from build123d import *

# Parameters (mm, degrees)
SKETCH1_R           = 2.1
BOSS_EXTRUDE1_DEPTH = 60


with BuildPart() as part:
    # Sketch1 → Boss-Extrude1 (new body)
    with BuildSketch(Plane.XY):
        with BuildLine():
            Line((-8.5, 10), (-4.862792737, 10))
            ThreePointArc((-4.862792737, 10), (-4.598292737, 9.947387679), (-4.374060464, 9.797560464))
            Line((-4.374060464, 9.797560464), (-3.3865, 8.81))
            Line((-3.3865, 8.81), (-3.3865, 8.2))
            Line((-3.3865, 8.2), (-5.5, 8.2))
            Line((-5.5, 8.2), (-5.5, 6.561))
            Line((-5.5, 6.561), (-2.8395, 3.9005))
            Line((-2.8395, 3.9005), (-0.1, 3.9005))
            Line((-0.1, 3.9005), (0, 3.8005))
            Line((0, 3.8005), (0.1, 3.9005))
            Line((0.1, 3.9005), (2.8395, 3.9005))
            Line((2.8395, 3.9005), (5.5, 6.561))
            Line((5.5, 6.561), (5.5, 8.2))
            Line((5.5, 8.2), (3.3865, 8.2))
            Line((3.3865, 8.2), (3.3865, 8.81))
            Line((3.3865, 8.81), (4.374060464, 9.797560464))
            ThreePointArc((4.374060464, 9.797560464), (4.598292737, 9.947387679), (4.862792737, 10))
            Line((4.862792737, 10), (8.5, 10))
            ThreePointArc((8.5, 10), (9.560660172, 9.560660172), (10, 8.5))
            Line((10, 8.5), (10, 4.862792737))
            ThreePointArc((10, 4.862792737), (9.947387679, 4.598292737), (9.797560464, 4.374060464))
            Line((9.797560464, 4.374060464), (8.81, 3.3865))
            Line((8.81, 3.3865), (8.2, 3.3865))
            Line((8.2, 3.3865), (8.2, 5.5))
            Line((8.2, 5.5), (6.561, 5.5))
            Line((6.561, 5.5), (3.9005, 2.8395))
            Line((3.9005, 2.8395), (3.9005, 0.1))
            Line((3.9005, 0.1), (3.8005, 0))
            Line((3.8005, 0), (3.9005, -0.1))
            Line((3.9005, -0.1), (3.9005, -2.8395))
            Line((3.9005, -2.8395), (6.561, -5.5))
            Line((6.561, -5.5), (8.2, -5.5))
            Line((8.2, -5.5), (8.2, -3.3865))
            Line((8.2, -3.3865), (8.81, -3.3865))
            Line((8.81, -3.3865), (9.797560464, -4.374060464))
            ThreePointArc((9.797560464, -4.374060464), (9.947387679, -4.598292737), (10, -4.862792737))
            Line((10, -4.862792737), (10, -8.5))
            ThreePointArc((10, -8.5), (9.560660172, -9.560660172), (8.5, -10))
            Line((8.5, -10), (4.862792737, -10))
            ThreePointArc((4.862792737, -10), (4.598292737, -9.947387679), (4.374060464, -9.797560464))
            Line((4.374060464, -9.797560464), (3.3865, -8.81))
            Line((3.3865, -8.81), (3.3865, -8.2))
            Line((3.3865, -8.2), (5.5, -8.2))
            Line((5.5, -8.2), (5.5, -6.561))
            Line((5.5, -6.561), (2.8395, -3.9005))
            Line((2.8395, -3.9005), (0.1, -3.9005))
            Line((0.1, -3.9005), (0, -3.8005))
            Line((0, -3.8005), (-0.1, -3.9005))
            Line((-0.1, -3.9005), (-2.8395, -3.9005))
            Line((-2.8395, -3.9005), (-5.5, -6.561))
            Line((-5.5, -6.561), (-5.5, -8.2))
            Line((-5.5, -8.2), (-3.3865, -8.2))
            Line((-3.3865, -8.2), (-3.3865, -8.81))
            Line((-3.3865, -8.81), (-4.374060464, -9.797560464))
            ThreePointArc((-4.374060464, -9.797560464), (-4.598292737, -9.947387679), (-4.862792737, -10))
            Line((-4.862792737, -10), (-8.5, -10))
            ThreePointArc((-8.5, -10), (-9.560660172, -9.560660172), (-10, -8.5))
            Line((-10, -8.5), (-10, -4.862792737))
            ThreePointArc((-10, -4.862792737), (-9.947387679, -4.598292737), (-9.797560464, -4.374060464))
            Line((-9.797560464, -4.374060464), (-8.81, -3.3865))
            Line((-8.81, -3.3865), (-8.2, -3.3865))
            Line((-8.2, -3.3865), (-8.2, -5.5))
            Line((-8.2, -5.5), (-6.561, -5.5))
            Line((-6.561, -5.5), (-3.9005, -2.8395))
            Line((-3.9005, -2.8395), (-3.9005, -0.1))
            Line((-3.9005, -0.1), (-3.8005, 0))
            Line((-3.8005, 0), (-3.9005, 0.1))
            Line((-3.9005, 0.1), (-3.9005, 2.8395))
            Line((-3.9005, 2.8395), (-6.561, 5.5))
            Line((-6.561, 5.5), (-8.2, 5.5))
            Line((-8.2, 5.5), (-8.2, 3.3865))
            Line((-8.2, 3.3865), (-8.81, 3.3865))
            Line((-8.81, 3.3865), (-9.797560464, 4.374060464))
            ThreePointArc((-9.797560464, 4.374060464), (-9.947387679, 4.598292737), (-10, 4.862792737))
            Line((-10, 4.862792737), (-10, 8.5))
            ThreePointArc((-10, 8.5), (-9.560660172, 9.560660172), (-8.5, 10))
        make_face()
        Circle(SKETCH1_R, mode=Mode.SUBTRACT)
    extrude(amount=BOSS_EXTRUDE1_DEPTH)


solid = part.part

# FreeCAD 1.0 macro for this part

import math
import FreeCAD as App
import Part
import Sketcher
Q = App.Units.Quantity

doc = App.newDocument("Part")
body = doc.addObject("PartDesign::Body", "Body")

# Sketch on XY plane
sketch1 = body.newObject("Sketcher::SketchObject", "Sketch")
sketch1.AttachmentSupport = (doc.getObject("XY_Plane"), [""])
sketch1.MapMode = "FlatFace"
sketch1.addGeometry(Part.LineSegment(App.Vector(-4.86, 10, 0), App.Vector(-8.5, 10, 0)), False)
sketch1.addGeometry(Part.ArcOfCircle(Part.Circle(App.Vector(-8.5, 8.5, 0), App.Vector(0, 0, 1), 1.5), math.radians(90), math.radians(180)), False)
sketch1.addGeometry(Part.LineSegment(App.Vector(-10, 8.5, 0), App.Vector(-10, 4.86, 0)), False)
sketch1.addGeometry(Part.ArcOfCircle(Part.Circle(App.Vector(-9.31, 4.86, 0), App.Vector(0, 0, 1), 0.69), math.radians(180), math.radians(225)), False)
sketch1.addGeometry(Part.LineSegment(App.Vector(-9.8, 4.37, 0), App.Vector(-8.81, 3.39, 0)), False)
sketch1.addGeometry(Part.LineSegment(App.Vector(-8.81, 3.39, 0), App.Vector(-8.2, 3.39, 0)), False)
sketch1.addGeometry(Part.LineSegment(App.Vector(-8.2, 3.39, 0), App.Vector(-8.2, 5.5, 0)), False)
sketch1.addGeometry(Part.LineSegment(App.Vector(-8.2, 5.5, 0), App.Vector(-6.56, 5.5, 0)), False)
sketch1.addGeometry(Part.LineSegment(App.Vector(-6.56, 5.5, 0), App.Vector(-3.9, 2.84, 0)), False)
sketch1.addGeometry(Part.LineSegment(App.Vector(-3.9, 2.84, 0), App.Vector(-3.9, 0.1, 0)), False)
sketch1.addGeometry(Part.LineSegment(App.Vector(-3.9, 0.1, 0), App.Vector(-3.8, 0, 0)), False)
sketch1.addGeometry(Part.LineSegment(App.Vector(-3.8, 0, 0), App.Vector(-3.9, -0.1, 0)), False)
sketch1.addGeometry(Part.LineSegment(App.Vector(-3.9, -0.1, 0), App.Vector(-3.9, -2.84, 0)), False)
sketch1.addGeometry(Part.LineSegment(App.Vector(-3.9, -2.84, 0), App.Vector(-6.56, -5.5, 0)), False)
sketch1.addGeometry(Part.LineSegment(App.Vector(-6.56, -5.5, 0), App.Vector(-8.2, -5.5, 0)), False)
sketch1.addGeometry(Part.LineSegment(App.Vector(-8.2, -5.5, 0), App.Vector(-8.2, -3.39, 0)), False)
sketch1.addGeometry(Part.LineSegment(App.Vector(-8.2, -3.39, 0), App.Vector(-8.81, -3.39, 0)), False)
sketch1.addGeometry(Part.LineSegment(App.Vector(-8.81, -3.39, 0), App.Vector(-9.8, -4.37, 0)), False)
sketch1.addGeometry(Part.ArcOfCircle(Part.Circle(App.Vector(-9.31, -4.86, 0), App.Vector(0, 0, 1), 0.69), math.radians(135), math.radians(180)), False)
sketch1.addGeometry(Part.LineSegment(App.Vector(-10, -4.86, 0), App.Vector(-10, -8.5, 0)), False)
sketch1.addGeometry(Part.ArcOfCircle(Part.Circle(App.Vector(-8.5, -8.5, 0), App.Vector(0, 0, 1), 1.5), math.radians(180), math.radians(270)), False)
sketch1.addGeometry(Part.LineSegment(App.Vector(-8.5, -10, 0), App.Vector(-4.86, -10, 0)), False)
sketch1.addGeometry(Part.ArcOfCircle(Part.Circle(App.Vector(-4.86, -9.31, 0), App.Vector(0, 0, 1), 0.69), math.radians(-90), math.radians(-45)), False)
sketch1.addGeometry(Part.LineSegment(App.Vector(-4.37, -9.8, 0), App.Vector(-3.39, -8.81, 0)), False)
sketch1.addGeometry(Part.LineSegment(App.Vector(-3.39, -8.81, 0), App.Vector(-3.39, -8.2, 0)), False)
sketch1.addGeometry(Part.LineSegment(App.Vector(-3.39, -8.2, 0), App.Vector(-5.5, -8.2, 0)), False)
sketch1.addGeometry(Part.LineSegment(App.Vector(-5.5, -8.2, 0), App.Vector(-5.5, -6.56, 0)), False)
sketch1.addGeometry(Part.LineSegment(App.Vector(-5.5, -6.56, 0), App.Vector(-2.84, -3.9, 0)), False)
sketch1.addGeometry(Part.LineSegment(App.Vector(-2.84, -3.9, 0), App.Vector(-0.1, -3.9, 0)), False)
sketch1.addGeometry(Part.LineSegment(App.Vector(-0.1, -3.9, 0), App.Vector(0, -3.8, 0)), False)
sketch1.addGeometry(Part.LineSegment(App.Vector(0, -3.8, 0), App.Vector(0.1, -3.9, 0)), False)
sketch1.addGeometry(Part.LineSegment(App.Vector(0.1, -3.9, 0), App.Vector(2.84, -3.9, 0)), False)
sketch1.addGeometry(Part.LineSegment(App.Vector(2.84, -3.9, 0), App.Vector(5.5, -6.56, 0)), False)
sketch1.addGeometry(Part.LineSegment(App.Vector(5.5, -6.56, 0), App.Vector(5.5, -8.2, 0)), False)
sketch1.addGeometry(Part.LineSegment(App.Vector(5.5, -8.2, 0), App.Vector(3.39, -8.2, 0)), False)
sketch1.addGeometry(Part.LineSegment(App.Vector(3.39, -8.2, 0), App.Vector(3.39, -8.81, 0)), False)
sketch1.addGeometry(Part.LineSegment(App.Vector(3.39, -8.81, 0), App.Vector(4.37, -9.8, 0)), False)
sketch1.addGeometry(Part.ArcOfCircle(Part.Circle(App.Vector(4.86, -9.31, 0), App.Vector(0, 0, 1), 0.69), math.radians(-135), math.radians(-90)), False)
sketch1.addGeometry(Part.LineSegment(App.Vector(4.86, -10, 0), App.Vector(8.5, -10, 0)), False)
sketch1.addGeometry(Part.ArcOfCircle(Part.Circle(App.Vector(8.5, -8.5, 0), App.Vector(0, 0, 1), 1.5), math.radians(-90), math.radians(0)), False)
sketch1.addGeometry(Part.LineSegment(App.Vector(10, -8.5, 0), App.Vector(10, -4.86, 0)), False)
sketch1.addGeometry(Part.ArcOfCircle(Part.Circle(App.Vector(9.31, -4.86, 0), App.Vector(0, 0, 1), 0.69), math.radians(0), math.radians(45)), False)
sketch1.addGeometry(Part.LineSegment(App.Vector(9.8, -4.37, 0), App.Vector(8.81, -3.39, 0)), False)
sketch1.addGeometry(Part.LineSegment(App.Vector(8.81, -3.39, 0), App.Vector(8.2, -3.39, 0)), False)
sketch1.addGeometry(Part.LineSegment(App.Vector(8.2, -3.39, 0), App.Vector(8.2, -5.5, 0)), False)
sketch1.addGeometry(Part.LineSegment(App.Vector(8.2, -5.5, 0), App.Vector(6.56, -5.5, 0)), False)
sketch1.addGeometry(Part.LineSegment(App.Vector(6.56, -5.5, 0), App.Vector(3.9, -2.84, 0)), False)
sketch1.addGeometry(Part.LineSegment(App.Vector(3.9, -2.84, 0), App.Vector(3.9, -0.1, 0)), False)
sketch1.addGeometry(Part.LineSegment(App.Vector(3.9, -0.1, 0), App.Vector(3.8, 0, 0)), False)
sketch1.addGeometry(Part.LineSegment(App.Vector(3.8, 0, 0), App.Vector(3.9, 0.1, 0)), False)
sketch1.addGeometry(Part.LineSegment(App.Vector(3.9, 0.1, 0), App.Vector(3.9, 2.84, 0)), False)
sketch1.addGeometry(Part.LineSegment(App.Vector(3.9, 2.84, 0), App.Vector(6.56, 5.5, 0)), False)
sketch1.addGeometry(Part.LineSegment(App.Vector(6.56, 5.5, 0), App.Vector(8.2, 5.5, 0)), False)
sketch1.addGeometry(Part.LineSegment(App.Vector(8.2, 5.5, 0), App.Vector(8.2, 3.39, 0)), False)
sketch1.addGeometry(Part.LineSegment(App.Vector(8.2, 3.39, 0), App.Vector(8.81, 3.39, 0)), False)
sketch1.addGeometry(Part.LineSegment(App.Vector(8.81, 3.39, 0), App.Vector(9.8, 4.37, 0)), False)
sketch1.addGeometry(Part.ArcOfCircle(Part.Circle(App.Vector(9.31, 4.86, 0), App.Vector(0, 0, 1), 0.69), math.radians(-45), math.radians(0)), False)
sketch1.addGeometry(Part.LineSegment(App.Vector(10, 4.86, 0), App.Vector(10, 8.5, 0)), False)
sketch1.addGeometry(Part.ArcOfCircle(Part.Circle(App.Vector(8.5, 8.5, 0), App.Vector(0, 0, 1), 1.5), math.radians(0), math.radians(90)), False)
sketch1.addGeometry(Part.LineSegment(App.Vector(8.5, 10, 0), App.Vector(4.86, 10, 0)), False)
sketch1.addGeometry(Part.ArcOfCircle(Part.Circle(App.Vector(4.86, 9.31, 0), App.Vector(0, 0, 1), 0.69), math.radians(90), math.radians(135)), False)
sketch1.addGeometry(Part.LineSegment(App.Vector(4.37, 9.8, 0), App.Vector(3.39, 8.81, 0)), False)
sketch1.addGeometry(Part.LineSegment(App.Vector(3.39, 8.81, 0), App.Vector(3.39, 8.2, 0)), False)
sketch1.addGeometry(Part.LineSegment(App.Vector(3.39, 8.2, 0), App.Vector(5.5, 8.2, 0)), False)
sketch1.addGeometry(Part.LineSegment(App.Vector(5.5, 8.2, 0), App.Vector(5.5, 6.56, 0)), False)
sketch1.addGeometry(Part.LineSegment(App.Vector(5.5, 6.56, 0), App.Vector(2.84, 3.9, 0)), False)
sketch1.addGeometry(Part.LineSegment(App.Vector(2.84, 3.9, 0), App.Vector(0.1, 3.9, 0)), False)
sketch1.addGeometry(Part.LineSegment(App.Vector(0.1, 3.9, 0), App.Vector(0, 3.8, 0)), False)
sketch1.addGeometry(Part.LineSegment(App.Vector(0, 3.8, 0), App.Vector(-0.1, 3.9, 0)), False)
sketch1.addGeometry(Part.LineSegment(App.Vector(-0.1, 3.9, 0), App.Vector(-2.84, 3.9, 0)), False)
sketch1.addGeometry(Part.LineSegment(App.Vector(-2.84, 3.9, 0), App.Vector(-5.5, 6.56, 0)), False)
sketch1.addGeometry(Part.LineSegment(App.Vector(-5.5, 6.56, 0), App.Vector(-5.5, 8.2, 0)), False)
sketch1.addGeometry(Part.LineSegment(App.Vector(-5.5, 8.2, 0), App.Vector(-3.39, 8.2, 0)), False)
sketch1.addGeometry(Part.LineSegment(App.Vector(-3.39, 8.2, 0), App.Vector(-3.39, 8.81, 0)), False)
sketch1.addGeometry(Part.LineSegment(App.Vector(-3.39, 8.81, 0), App.Vector(-4.37, 9.8, 0)), False)
sketch1.addGeometry(Part.ArcOfCircle(Part.Circle(App.Vector(-4.86, 9.31, 0), App.Vector(0, 0, 1), 0.69), math.radians(45), math.radians(90)), False)
sketch1.addGeometry(Part.Circle(App.Vector(0, 0, 0), App.Vector(0, 0, 1), 2.1), False)
sketch1.addConstraint(Sketcher.Constraint("Tangent", 0, 2, 1, 1))
sketch1.addConstraint(Sketcher.Constraint("Tangent", 1, 2, 2, 1))
sketch1.addConstraint(Sketcher.Constraint("Tangent", 2, 2, 3, 1))
sketch1.addConstraint(Sketcher.Constraint("Tangent", 3, 2, 4, 1))
sketch1.addConstraint(Sketcher.Constraint("Coincident", 4, 2, 5, 1))
sketch1.addConstraint(Sketcher.Constraint("Coincident", 5, 2, 6, 1))
sketch1.addConstraint(Sketcher.Constraint("Coincident", 6, 2, 7, 1))
sketch1.addConstraint(Sketcher.Constraint("Coincident", 7, 2, 8, 1))
sketch1.addConstraint(Sketcher.Constraint("Coincident", 8, 2, 9, 1))
sketch1.addConstraint(Sketcher.Constraint("Coincident", 9, 2, 10, 1))
sketch1.addConstraint(Sketcher.Constraint("Coincident", 10, 2, 11, 1))
sketch1.addConstraint(Sketcher.Constraint("Coincident", 11, 2, 12, 1))
sketch1.addConstraint(Sketcher.Constraint("Coincident", 12, 2, 13, 1))
sketch1.addConstraint(Sketcher.Constraint("Coincident", 13, 2, 14, 1))
sketch1.addConstraint(Sketcher.Constraint("Coincident", 14, 2, 15, 1))
sketch1.addConstraint(Sketcher.Constraint("Coincident", 15, 2, 16, 1))
sketch1.addConstraint(Sketcher.Constraint("Coincident", 16, 2, 17, 1))
sketch1.addConstraint(Sketcher.Constraint("Tangent", 17, 2, 18, 1))
sketch1.addConstraint(Sketcher.Constraint("Tangent", 18, 2, 19, 1))
sketch1.addConstraint(Sketcher.Constraint("Tangent", 19, 2, 20, 1))
sketch1.addConstraint(Sketcher.Constraint("Tangent", 20, 2, 21, 1))
sketch1.addConstraint(Sketcher.Constraint("Tangent", 21, 2, 22, 1))
sketch1.addConstraint(Sketcher.Constraint("Tangent", 22, 2, 23, 1))
sketch1.addConstraint(Sketcher.Constraint("Coincident", 23, 2, 24, 1))
sketch1.addConstraint(Sketcher.Constraint("Coincident", 24, 2, 25, 1))
sketch1.addConstraint(Sketcher.Constraint("Coincident", 25, 2, 26, 1))
sketch1.addConstraint(Sketcher.Constraint("Coincident", 26, 2, 27, 1))
sketch1.addConstraint(Sketcher.Constraint("Coincident", 27, 2, 28, 1))
sketch1.addConstraint(Sketcher.Constraint("Coincident", 28, 2, 29, 1))
sketch1.addConstraint(Sketcher.Constraint("Coincident", 29, 2, 30, 1))
sketch1.addConstraint(Sketcher.Constraint("Coincident", 30, 2, 31, 1))
sketch1.addConstraint(Sketcher.Constraint("Coincident", 31, 2, 32, 1))
sketch1.addConstraint(Sketcher.Constraint("Coincident", 32, 2, 33, 1))
sketch1.addConstraint(Sketcher.Constraint("Coincident", 33, 2, 34, 1))
sketch1.addConstraint(Sketcher.Constraint("Coincident", 34, 2, 35, 1))
sketch1.addConstraint(Sketcher.Constraint("Coincident", 35, 2, 36, 1))
sketch1.addConstraint(Sketcher.Constraint("Tangent", 36, 2, 37, 1))
sketch1.addConstraint(Sketcher.Constraint("Tangent", 37, 2, 38, 1))
sketch1.addConstraint(Sketcher.Constraint("Tangent", 38, 2, 39, 1))
sketch1.addConstraint(Sketcher.Constraint("Tangent", 39, 2, 40, 1))
sketch1.addConstraint(Sketcher.Constraint("Tangent", 40, 2, 41, 1))
sketch1.addConstraint(Sketcher.Constraint("Tangent", 41, 2, 42, 1))
sketch1.addConstraint(Sketcher.Constraint("Coincident", 42, 2, 43, 1))
sketch1.addConstraint(Sketcher.Constraint("Coincident", 43, 2, 44, 1))
sketch1.addConstraint(Sketcher.Constraint("Coincident", 44, 2, 45, 1))
sketch1.addConstraint(Sketcher.Constraint("Coincident", 45, 2, 46, 1))
sketch1.addConstraint(Sketcher.Constraint("Coincident", 46, 2, 47, 1))
sketch1.addConstraint(Sketcher.Constraint("Coincident", 47, 2, 48, 1))
sketch1.addConstraint(Sketcher.Constraint("Coincident", 48, 2, 49, 1))
sketch1.addConstraint(Sketcher.Constraint("Coincident", 49, 2, 50, 1))
sketch1.addConstraint(Sketcher.Constraint("Coincident", 50, 2, 51, 1))
sketch1.addConstraint(Sketcher.Constraint("Coincident", 51, 2, 52, 1))
sketch1.addConstraint(Sketcher.Constraint("Coincident", 52, 2, 53, 1))
sketch1.addConstraint(Sketcher.Constraint("Coincident", 53, 2, 54, 1))
sketch1.addConstraint(Sketcher.Constraint("Coincident", 54, 2, 55, 1))
sketch1.addConstraint(Sketcher.Constraint("Tangent", 55, 2, 56, 1))
sketch1.addConstraint(Sketcher.Constraint("Tangent", 56, 2, 57, 1))
sketch1.addConstraint(Sketcher.Constraint("Tangent", 57, 2, 58, 1))
sketch1.addConstraint(Sketcher.Constraint("Tangent", 58, 2, 59, 1))
sketch1.addConstraint(Sketcher.Constraint("Tangent", 59, 2, 60, 1))
sketch1.addConstraint(Sketcher.Constraint("Tangent", 60, 2, 61, 1))
sketch1.addConstraint(Sketcher.Constraint("Coincident", 61, 2, 62, 1))
sketch1.addConstraint(Sketcher.Constraint("Coincident", 62, 2, 63, 1))
sketch1.addConstraint(Sketcher.Constraint("Coincident", 63, 2, 64, 1))
sketch1.addConstraint(Sketcher.Constraint("Coincident", 64, 2, 65, 1))
sketch1.addConstraint(Sketcher.Constraint("Coincident", 65, 2, 66, 1))
sketch1.addConstraint(Sketcher.Constraint("Coincident", 66, 2, 67, 1))
sketch1.addConstraint(Sketcher.Constraint("Coincident", 67, 2, 68, 1))
sketch1.addConstraint(Sketcher.Constraint("Coincident", 68, 2, 69, 1))
sketch1.addConstraint(Sketcher.Constraint("Coincident", 69, 2, 70, 1))
sketch1.addConstraint(Sketcher.Constraint("Coincident", 70, 2, 71, 1))
sketch1.addConstraint(Sketcher.Constraint("Coincident", 71, 2, 72, 1))
sketch1.addConstraint(Sketcher.Constraint("Coincident", 72, 2, 73, 1))
sketch1.addConstraint(Sketcher.Constraint("Coincident", 73, 2, 74, 1))
sketch1.addConstraint(Sketcher.Constraint("Tangent", 74, 2, 75, 1))
sketch1.addConstraint(Sketcher.Constraint("Tangent", 75, 2, 0, 1))
sketch1.addConstraint(Sketcher.Constraint("Horizontal", 0))
sketch1.addConstraint(Sketcher.Constraint("Vertical", 2))
sketch1.addConstraint(Sketcher.Constraint("Horizontal", 5))
sketch1.addConstraint(Sketcher.Constraint("Vertical", 6))
sketch1.addConstraint(Sketcher.Constraint("Horizontal", 7))
sketch1.addConstraint(Sketcher.Constraint("Vertical", 9))
sketch1.addConstraint(Sketcher.Constraint("Vertical", 12))
sketch1.addConstraint(Sketcher.Constraint("Horizontal", 14))
sketch1.addConstraint(Sketcher.Constraint("Vertical", 15))
sketch1.addConstraint(Sketcher.Constraint("Horizontal", 16))
sketch1.addConstraint(Sketcher.Constraint("Vertical", 19))
sketch1.addConstraint(Sketcher.Constraint("Horizontal", 21))
sketch1.addConstraint(Sketcher.Constraint("Vertical", 24))
sketch1.addConstraint(Sketcher.Constraint("Horizontal", 25))
sketch1.addConstraint(Sketcher.Constraint("Vertical", 26))
sketch1.addConstraint(Sketcher.Constraint("Horizontal", 28))
sketch1.addConstraint(Sketcher.Constraint("Horizontal", 31))
sketch1.addConstraint(Sketcher.Constraint("Vertical", 33))
sketch1.addConstraint(Sketcher.Constraint("Horizontal", 34))
sketch1.addConstraint(Sketcher.Constraint("Vertical", 35))
sketch1.addConstraint(Sketcher.Constraint("Horizontal", 38))
sketch1.addConstraint(Sketcher.Constraint("Vertical", 40))
sketch1.addConstraint(Sketcher.Constraint("Horizontal", 43))
sketch1.addConstraint(Sketcher.Constraint("Vertical", 44))
sketch1.addConstraint(Sketcher.Constraint("Horizontal", 45))
sketch1.addConstraint(Sketcher.Constraint("Vertical", 47))
sketch1.addConstraint(Sketcher.Constraint("Vertical", 50))
sketch1.addConstraint(Sketcher.Constraint("Horizontal", 52))
sketch1.addConstraint(Sketcher.Constraint("Vertical", 53))
sketch1.addConstraint(Sketcher.Constraint("Horizontal", 54))
sketch1.addConstraint(Sketcher.Constraint("Vertical", 57))
sketch1.addConstraint(Sketcher.Constraint("Horizontal", 59))
sketch1.addConstraint(Sketcher.Constraint("Vertical", 62))
sketch1.addConstraint(Sketcher.Constraint("Horizontal", 63))
sketch1.addConstraint(Sketcher.Constraint("Vertical", 64))
sketch1.addConstraint(Sketcher.Constraint("Horizontal", 66))
sketch1.addConstraint(Sketcher.Constraint("Horizontal", 69))
sketch1.addConstraint(Sketcher.Constraint("Vertical", 71))
sketch1.addConstraint(Sketcher.Constraint("Horizontal", 72))
sketch1.addConstraint(Sketcher.Constraint("Vertical", 73))
sketch1.addConstraint(Sketcher.Constraint("Coincident", 76, 3, -1, 1))
sketch1.addConstraint(Sketcher.Constraint("Equal", 3, 18))
sketch1.addConstraint(Sketcher.Constraint("Equal", 1, 20))
sketch1.addConstraint(Sketcher.Constraint("Equal", 18, 22))
sketch1.addConstraint(Sketcher.Constraint("Equal", 22, 37))
sketch1.addConstraint(Sketcher.Constraint("Equal", 20, 39))
sketch1.addConstraint(Sketcher.Constraint("Equal", 37, 41))
sketch1.addConstraint(Sketcher.Constraint("Equal", 41, 56))
sketch1.addConstraint(Sketcher.Constraint("Equal", 39, 58))
sketch1.addConstraint(Sketcher.Constraint("Equal", 56, 60))
sketch1.addConstraint(Sketcher.Constraint("Equal", 60, 75))
sketch1.addConstraint(Sketcher.Constraint("Symmetric", 1, 3, 39, 3, -1, 1))
sketch1.addConstraint(Sketcher.Constraint("Symmetric", 18, 3, 56, 3, -1, 1))
sketch1.addConstraint(Sketcher.Constraint("Symmetric", 22, 3, 60, 3, -1, 1))
sketch1.addConstraint(Sketcher.Constraint("Symmetric", 3, 2, 41, 2, -1, 1))
sketch1.addConstraint(Sketcher.Constraint("Symmetric", 5, 2, 43, 2, -1, 1))
sketch1.addConstraint(Sketcher.Constraint("Symmetric", 7, 2, 45, 2, -1, 1))
sketch1.addConstraint(Sketcher.Constraint("Symmetric", 8, 2, 46, 2, -1, 1))
sketch1.addConstraint(Sketcher.Constraint("Symmetric", 10, 2, 48, 2, -1, 1))
sketch1.addConstraint(Sketcher.Constraint("Symmetric", 11, 2, 49, 2, -1, 1))
sketch1.addConstraint(Sketcher.Constraint("Symmetric", 13, 2, 51, 2, -1, 1))
sketch1.addConstraint(Sketcher.Constraint("Symmetric", 15, 2, 53, 2, -1, 1))
sketch1.addConstraint(Sketcher.Constraint("Symmetric", 23, 2, 61, 2, -1, 1))
sketch1.addConstraint(Sketcher.Constraint("Symmetric", 25, 2, 63, 2, -1, 1))
sketch1.addConstraint(Sketcher.Constraint("Symmetric", 27, 2, 65, 2, -1, 1))
sketch1.addConstraint(Sketcher.Constraint("Symmetric", 29, 2, 67, 2, -1, 1))
sketch1.addConstraint(Sketcher.Constraint("Symmetric", 30, 2, 68, 2, -1, 1))
sketch1.addConstraint(Sketcher.Constraint("Symmetric", 32, 2, 70, 2, -1, 1))
sketch1.addConstraint(Sketcher.Constraint("Symmetric", 34, 2, 72, 2, -1, 1))
sketch1.addConstraint(Sketcher.Constraint("Symmetric", 36, 2, 74, 2, -1, 1))
sketch1.addConstraint(Sketcher.Constraint("Symmetric", 22, 3, 37, 3, -2))
sketch1.addConstraint(Sketcher.Constraint("Symmetric", 18, 3, 41, 3, -2))
sketch1.addConstraint(Sketcher.Constraint("Symmetric", 28, 2, 30, 2, -2))
sketch1.addConstraint(Sketcher.Constraint("Symmetric", 26, 2, 32, 2, -2))
sketch1.addConstraint(Sketcher.Constraint("Symmetric", 24, 2, 34, 2, -2))
sketch1.addConstraint(Sketcher.Constraint("Symmetric", 16, 2, 42, 2, -2))
sketch1.addConstraint(Sketcher.Constraint("Symmetric", 14, 2, 44, 2, -2))
sketch1.addConstraint(Sketcher.Constraint("Symmetric", 12, 2, 46, 2, -2))
sketch1.addConstraint(Sketcher.Constraint("PointOnObject", 10, 2, -1))
sketch1.addConstraint(Sketcher.Constraint("PointOnObject", 29, 2, -2))
sketch1.addConstraint(Sketcher.Constraint("Parallel", 4, 8))
sketch1.addConstraint(Sketcher.Constraint("Parallel", 8, 10))
sketch1.addConstraint(Sketcher.Constraint("Perpendicular", 10, 11))
sketch1.addConstraint(Sketcher.Constraint("Parallel", 11, 13))
sketch1.addConstraint(Sketcher.Constraint("Parallel", 13, 17))
sketch1.addConstraint(Sketcher.Constraint("Parallel", 17, 23))
sketch1.addConstraint(Sketcher.Constraint("Parallel", 23, 27))
sketch1.addConstraint(Sketcher.Constraint("Parallel", 27, 29))
sketch1.addConstraint(Sketcher.Constraint("Parallel", 30, 32))
sketch1.addConstraint(Sketcher.Constraint("Parallel", 32, 36))
sketch1.addConstraint(Sketcher.Constraint("Parallel", 46, 48))
sketch1.addConstraint(Sketcher.Constraint("Parallel", 49, 51))
sketch1.addConstraint(Sketcher.Constraint("Parallel", 51, 55))
sketch1.addConstraint(Sketcher.Constraint("Parallel", 61, 65))
sketch1.addConstraint(Sketcher.Constraint("Parallel", 65, 67))
sketch1.addConstraint(Sketcher.Constraint("Parallel", 68, 70))
sketch1.addConstraint(Sketcher.Constraint("Equal", 59, 2))
sketch1.addConstraint(Sketcher.Constraint("Equal", 72, 6))
sketch1.addConstraint(Sketcher.Constraint("Equal", 69, 9))
sketch1.addConstraint(Sketcher.Constraint("Equal", 54, 24))
sketch1.addConstraint(Sketcher.Constraint("Equal", 52, 26))
sketch1.addConstraint(Sketcher.Constraint("Equal", 17, 23))
sketch1.addConstraint(Sketcher.Constraint("Equal", 13, 27))
sketch1.addConstraint(Sketcher.Constraint("Equal", 11, 29))
sketch1.addConstraint(Sketcher.Constraint("Diameter", 76, Q("4.2 mm")))
sketch1.addConstraint(Sketcher.Constraint("Radius", 1, Q("1.5 mm")))
sketch1.addConstraint(Sketcher.Constraint("DistanceY", -1, 1, 0, 2, Q("10 mm")))
sketch1.addConstraint(Sketcher.Constraint("DistanceX", 5, 1, 5, 2, Q("0.61 mm")))
sketch1.addConstraint(Sketcher.Constraint("DistanceX", 5, 2, -1, 1, Q("8.2 mm")))
sketch1.addConstraint(Sketcher.Constraint("DistanceY", -1, 1, 6, 2, Q("5.5 mm")))
sketch1.addConstraint(Sketcher.Constraint("DistanceY", -1, 1, 9, 2, Q("0.1 mm")))
sketch1.addConstraint(Sketcher.Constraint("DistanceX", 7, 1, 7, 2, Q("1.639 mm")))
sketch1.addConstraint(Sketcher.Constraint("Radius", 3, Q("0.691172 mm")))
sketch1.addConstraint(Sketcher.Constraint("DistanceX", 25, 2, 25, 1, Q("2.1135 mm")))
sketch1.addConstraint(Sketcher.Constraint("DistanceX", 28, 1, 28, 2, Q("2.7395 mm")))
pad1 = body.newObject("PartDesign::Pad", "Pad")
pad1.Profile = sketch1
pad1.Length = 60

doc.recompute()
